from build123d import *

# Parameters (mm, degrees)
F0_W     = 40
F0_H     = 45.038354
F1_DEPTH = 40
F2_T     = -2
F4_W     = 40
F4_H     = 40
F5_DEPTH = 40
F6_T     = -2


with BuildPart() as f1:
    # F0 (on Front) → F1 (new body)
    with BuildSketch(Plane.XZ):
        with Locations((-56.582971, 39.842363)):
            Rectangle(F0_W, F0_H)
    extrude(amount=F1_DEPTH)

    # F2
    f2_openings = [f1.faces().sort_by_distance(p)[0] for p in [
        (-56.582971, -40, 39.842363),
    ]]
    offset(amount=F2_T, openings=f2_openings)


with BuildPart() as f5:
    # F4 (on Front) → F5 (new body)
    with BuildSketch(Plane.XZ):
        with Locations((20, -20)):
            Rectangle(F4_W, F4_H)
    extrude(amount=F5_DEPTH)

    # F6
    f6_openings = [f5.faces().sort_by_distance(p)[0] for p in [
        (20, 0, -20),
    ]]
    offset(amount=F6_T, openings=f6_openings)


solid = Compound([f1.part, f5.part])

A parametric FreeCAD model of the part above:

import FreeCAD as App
import Part
import Sketcher
from FreeCAD import Vector


def faces_at(feature, points):
    """Names of the faces that lie closest to the given points."""
    faces = feature.Shape.Faces
    near = lambda p: min(range(len(faces)), key=lambda i: faces[i].distToShape(Part.Vertex(*p))[0])
    return sorted({f"Face{near(p) + 1}" for p in points})

doc = App.newDocument("Part")
params = doc.addObject("Spreadsheet::Sheet", "Params")
for row, (alias, value) in enumerate([
    ("sketch1_width", "40 mm"),
    ("pad1_length", "40 mm"),
    ("thickness_wall", "2 mm"),
    ("sketch2_width", "40 mm"),
    ("pad2_length", "40 mm"),
    ("thickness2_wall", "2 mm"),
], start=1):
    params.set(f"A{row}", alias)
    params.set(f"B{row}", "=" + value)
    params.setAlias(f"B{row}", alias)

body = doc.addObject("PartDesign::Body", "Body")

# Sketch on XZ plane
sketch1 = doc.addObject("Sketcher::SketchObject", "Sketch")
body.addObject(sketch1)
sketch1.AttachmentSupport = (doc.XZ_Plane, [""])
sketch1.MapMode = "FlatFace"
sketch1.addGeometry([
    Part.LineSegment(Vector(-77, 62, 0), Vector(-77, 17, 0)),
    Part.LineSegment(Vector(-77, 17, 0), Vector(-37, 17, 0)),
    Part.LineSegment(Vector(-37, 17, 0), Vector(-37, 62, 0)),
    Part.LineSegment(Vector(-37, 62, 0), Vector(-77, 62, 0)),
], False)
sketch1.addConstraint([
    Sketcher.Constraint("Coincident", 0, 2, 1, 1),
    Sketcher.Constraint("Coincident", 1, 2, 2, 1),
    Sketcher.Constraint("Coincident", 2, 2, 3, 1),
    Sketcher.Constraint("Coincident", 3, 2, 0, 1),
    Sketcher.Constraint("Vertical", 0),
    Sketcher.Constraint("Horizontal", 1),
    Sketcher.Constraint("Vertical", 2),
    Sketcher.Constraint("Horizontal", 3),
    Sketcher.Constraint("DistanceX", 1, 1, 1, 2, 40.0),
    Sketcher.Constraint("DistanceY", 0, 2, 0, 1, 45.038354),
    Sketcher.Constraint("DistanceX", 0, 2, -1, 1, 76.582971),
    Sketcher.Constraint("DistanceY", -1, 1, 2, 2, 62.36154),
])
sketch1.setExpression("Constraints[8]", "Params.sketch1_width")
pad1 = doc.addObject("PartDesign::Pad", "Pad")
body.addObject(pad1)
pad1.Profile = sketch1
pad1.setExpression("Length", "Params.pad1_length")
doc.recompute()

thickness = doc.addObject("PartDesign::Thickness", "Thickness")
body.addObject(thickness)
thickness.Base = (pad1, faces_at(pad1, [(-56.583, -40, 39.842)]))
thickness.setExpression("Value", "Params.thickness_wall")
thickness.Reversed = True
thickness.Join = "Arc"
body2 = doc.addObject("PartDesign::Body", "Body001")

# Sketch on XZ plane
sketch2 = doc.addObject("Sketcher::SketchObject", "Sketch001")
body2.addObject(sketch2)
sketch2.AttachmentSupport = (doc.getObject("XZ_Plane001"), [""])
sketch2.MapMode = "FlatFace"
sketch2.addGeometry([
    Part.LineSegment(Vector(0, 0, 0), Vector(0, -40, 0)),
    Part.LineSegment(Vector(0, -40, 0), Vector(40, -40, 0)),
    Part.LineSegment(Vector(40, -40, 0), Vector(40, 0, 0)),
    Part.LineSegment(Vector(40, 0, 0), Vector(0, 0, 0)),
], False)
sketch2.addConstraint([
    Sketcher.Constraint("Coincident", 0, 2, 1, 1),
    Sketcher.Constraint("Coincident", 1, 2, 2, 1),
    Sketcher.Constraint("Coincident", 2, 2, 3, 1),
    Sketcher.Constraint("Coincident", 3, 2, 0, 1),
    Sketcher.Constraint("Vertical", 0),
    Sketcher.Constraint("Horizontal", 1),
    Sketcher.Constraint("Vertical", 2),
    Sketcher.Constraint("Horizontal", 3),
    Sketcher.Constraint("Coincident", 3, 2, -1, 1),
    Sketcher.Constraint("Equal", 3, 0),
    Sketcher.Constraint("DistanceX", 1, 1, 1, 2, 40.0),
])
sketch2.setExpression("Constraints[10]", "Params.sketch2_width")
pad2 = doc.addObject("PartDesign::Pad", "Pad001")
body2.addObject(pad2)
pad2.Profile = sketch2
pad2.setExpression("Length", "Params.pad2_length")
doc.recompute()

thickness2 = doc.addObject("PartDesign::Thickness", "Thickness001")
body2.addObject(thickness2)
thickness2.Base = (pad2, faces_at(pad2, [(20, 0, -20)]))
thickness2.setExpression("Value", "Params.thickness2_wall")
thickness2.Reversed = True
thickness2.Join = "Arc"

doc.recompute()
